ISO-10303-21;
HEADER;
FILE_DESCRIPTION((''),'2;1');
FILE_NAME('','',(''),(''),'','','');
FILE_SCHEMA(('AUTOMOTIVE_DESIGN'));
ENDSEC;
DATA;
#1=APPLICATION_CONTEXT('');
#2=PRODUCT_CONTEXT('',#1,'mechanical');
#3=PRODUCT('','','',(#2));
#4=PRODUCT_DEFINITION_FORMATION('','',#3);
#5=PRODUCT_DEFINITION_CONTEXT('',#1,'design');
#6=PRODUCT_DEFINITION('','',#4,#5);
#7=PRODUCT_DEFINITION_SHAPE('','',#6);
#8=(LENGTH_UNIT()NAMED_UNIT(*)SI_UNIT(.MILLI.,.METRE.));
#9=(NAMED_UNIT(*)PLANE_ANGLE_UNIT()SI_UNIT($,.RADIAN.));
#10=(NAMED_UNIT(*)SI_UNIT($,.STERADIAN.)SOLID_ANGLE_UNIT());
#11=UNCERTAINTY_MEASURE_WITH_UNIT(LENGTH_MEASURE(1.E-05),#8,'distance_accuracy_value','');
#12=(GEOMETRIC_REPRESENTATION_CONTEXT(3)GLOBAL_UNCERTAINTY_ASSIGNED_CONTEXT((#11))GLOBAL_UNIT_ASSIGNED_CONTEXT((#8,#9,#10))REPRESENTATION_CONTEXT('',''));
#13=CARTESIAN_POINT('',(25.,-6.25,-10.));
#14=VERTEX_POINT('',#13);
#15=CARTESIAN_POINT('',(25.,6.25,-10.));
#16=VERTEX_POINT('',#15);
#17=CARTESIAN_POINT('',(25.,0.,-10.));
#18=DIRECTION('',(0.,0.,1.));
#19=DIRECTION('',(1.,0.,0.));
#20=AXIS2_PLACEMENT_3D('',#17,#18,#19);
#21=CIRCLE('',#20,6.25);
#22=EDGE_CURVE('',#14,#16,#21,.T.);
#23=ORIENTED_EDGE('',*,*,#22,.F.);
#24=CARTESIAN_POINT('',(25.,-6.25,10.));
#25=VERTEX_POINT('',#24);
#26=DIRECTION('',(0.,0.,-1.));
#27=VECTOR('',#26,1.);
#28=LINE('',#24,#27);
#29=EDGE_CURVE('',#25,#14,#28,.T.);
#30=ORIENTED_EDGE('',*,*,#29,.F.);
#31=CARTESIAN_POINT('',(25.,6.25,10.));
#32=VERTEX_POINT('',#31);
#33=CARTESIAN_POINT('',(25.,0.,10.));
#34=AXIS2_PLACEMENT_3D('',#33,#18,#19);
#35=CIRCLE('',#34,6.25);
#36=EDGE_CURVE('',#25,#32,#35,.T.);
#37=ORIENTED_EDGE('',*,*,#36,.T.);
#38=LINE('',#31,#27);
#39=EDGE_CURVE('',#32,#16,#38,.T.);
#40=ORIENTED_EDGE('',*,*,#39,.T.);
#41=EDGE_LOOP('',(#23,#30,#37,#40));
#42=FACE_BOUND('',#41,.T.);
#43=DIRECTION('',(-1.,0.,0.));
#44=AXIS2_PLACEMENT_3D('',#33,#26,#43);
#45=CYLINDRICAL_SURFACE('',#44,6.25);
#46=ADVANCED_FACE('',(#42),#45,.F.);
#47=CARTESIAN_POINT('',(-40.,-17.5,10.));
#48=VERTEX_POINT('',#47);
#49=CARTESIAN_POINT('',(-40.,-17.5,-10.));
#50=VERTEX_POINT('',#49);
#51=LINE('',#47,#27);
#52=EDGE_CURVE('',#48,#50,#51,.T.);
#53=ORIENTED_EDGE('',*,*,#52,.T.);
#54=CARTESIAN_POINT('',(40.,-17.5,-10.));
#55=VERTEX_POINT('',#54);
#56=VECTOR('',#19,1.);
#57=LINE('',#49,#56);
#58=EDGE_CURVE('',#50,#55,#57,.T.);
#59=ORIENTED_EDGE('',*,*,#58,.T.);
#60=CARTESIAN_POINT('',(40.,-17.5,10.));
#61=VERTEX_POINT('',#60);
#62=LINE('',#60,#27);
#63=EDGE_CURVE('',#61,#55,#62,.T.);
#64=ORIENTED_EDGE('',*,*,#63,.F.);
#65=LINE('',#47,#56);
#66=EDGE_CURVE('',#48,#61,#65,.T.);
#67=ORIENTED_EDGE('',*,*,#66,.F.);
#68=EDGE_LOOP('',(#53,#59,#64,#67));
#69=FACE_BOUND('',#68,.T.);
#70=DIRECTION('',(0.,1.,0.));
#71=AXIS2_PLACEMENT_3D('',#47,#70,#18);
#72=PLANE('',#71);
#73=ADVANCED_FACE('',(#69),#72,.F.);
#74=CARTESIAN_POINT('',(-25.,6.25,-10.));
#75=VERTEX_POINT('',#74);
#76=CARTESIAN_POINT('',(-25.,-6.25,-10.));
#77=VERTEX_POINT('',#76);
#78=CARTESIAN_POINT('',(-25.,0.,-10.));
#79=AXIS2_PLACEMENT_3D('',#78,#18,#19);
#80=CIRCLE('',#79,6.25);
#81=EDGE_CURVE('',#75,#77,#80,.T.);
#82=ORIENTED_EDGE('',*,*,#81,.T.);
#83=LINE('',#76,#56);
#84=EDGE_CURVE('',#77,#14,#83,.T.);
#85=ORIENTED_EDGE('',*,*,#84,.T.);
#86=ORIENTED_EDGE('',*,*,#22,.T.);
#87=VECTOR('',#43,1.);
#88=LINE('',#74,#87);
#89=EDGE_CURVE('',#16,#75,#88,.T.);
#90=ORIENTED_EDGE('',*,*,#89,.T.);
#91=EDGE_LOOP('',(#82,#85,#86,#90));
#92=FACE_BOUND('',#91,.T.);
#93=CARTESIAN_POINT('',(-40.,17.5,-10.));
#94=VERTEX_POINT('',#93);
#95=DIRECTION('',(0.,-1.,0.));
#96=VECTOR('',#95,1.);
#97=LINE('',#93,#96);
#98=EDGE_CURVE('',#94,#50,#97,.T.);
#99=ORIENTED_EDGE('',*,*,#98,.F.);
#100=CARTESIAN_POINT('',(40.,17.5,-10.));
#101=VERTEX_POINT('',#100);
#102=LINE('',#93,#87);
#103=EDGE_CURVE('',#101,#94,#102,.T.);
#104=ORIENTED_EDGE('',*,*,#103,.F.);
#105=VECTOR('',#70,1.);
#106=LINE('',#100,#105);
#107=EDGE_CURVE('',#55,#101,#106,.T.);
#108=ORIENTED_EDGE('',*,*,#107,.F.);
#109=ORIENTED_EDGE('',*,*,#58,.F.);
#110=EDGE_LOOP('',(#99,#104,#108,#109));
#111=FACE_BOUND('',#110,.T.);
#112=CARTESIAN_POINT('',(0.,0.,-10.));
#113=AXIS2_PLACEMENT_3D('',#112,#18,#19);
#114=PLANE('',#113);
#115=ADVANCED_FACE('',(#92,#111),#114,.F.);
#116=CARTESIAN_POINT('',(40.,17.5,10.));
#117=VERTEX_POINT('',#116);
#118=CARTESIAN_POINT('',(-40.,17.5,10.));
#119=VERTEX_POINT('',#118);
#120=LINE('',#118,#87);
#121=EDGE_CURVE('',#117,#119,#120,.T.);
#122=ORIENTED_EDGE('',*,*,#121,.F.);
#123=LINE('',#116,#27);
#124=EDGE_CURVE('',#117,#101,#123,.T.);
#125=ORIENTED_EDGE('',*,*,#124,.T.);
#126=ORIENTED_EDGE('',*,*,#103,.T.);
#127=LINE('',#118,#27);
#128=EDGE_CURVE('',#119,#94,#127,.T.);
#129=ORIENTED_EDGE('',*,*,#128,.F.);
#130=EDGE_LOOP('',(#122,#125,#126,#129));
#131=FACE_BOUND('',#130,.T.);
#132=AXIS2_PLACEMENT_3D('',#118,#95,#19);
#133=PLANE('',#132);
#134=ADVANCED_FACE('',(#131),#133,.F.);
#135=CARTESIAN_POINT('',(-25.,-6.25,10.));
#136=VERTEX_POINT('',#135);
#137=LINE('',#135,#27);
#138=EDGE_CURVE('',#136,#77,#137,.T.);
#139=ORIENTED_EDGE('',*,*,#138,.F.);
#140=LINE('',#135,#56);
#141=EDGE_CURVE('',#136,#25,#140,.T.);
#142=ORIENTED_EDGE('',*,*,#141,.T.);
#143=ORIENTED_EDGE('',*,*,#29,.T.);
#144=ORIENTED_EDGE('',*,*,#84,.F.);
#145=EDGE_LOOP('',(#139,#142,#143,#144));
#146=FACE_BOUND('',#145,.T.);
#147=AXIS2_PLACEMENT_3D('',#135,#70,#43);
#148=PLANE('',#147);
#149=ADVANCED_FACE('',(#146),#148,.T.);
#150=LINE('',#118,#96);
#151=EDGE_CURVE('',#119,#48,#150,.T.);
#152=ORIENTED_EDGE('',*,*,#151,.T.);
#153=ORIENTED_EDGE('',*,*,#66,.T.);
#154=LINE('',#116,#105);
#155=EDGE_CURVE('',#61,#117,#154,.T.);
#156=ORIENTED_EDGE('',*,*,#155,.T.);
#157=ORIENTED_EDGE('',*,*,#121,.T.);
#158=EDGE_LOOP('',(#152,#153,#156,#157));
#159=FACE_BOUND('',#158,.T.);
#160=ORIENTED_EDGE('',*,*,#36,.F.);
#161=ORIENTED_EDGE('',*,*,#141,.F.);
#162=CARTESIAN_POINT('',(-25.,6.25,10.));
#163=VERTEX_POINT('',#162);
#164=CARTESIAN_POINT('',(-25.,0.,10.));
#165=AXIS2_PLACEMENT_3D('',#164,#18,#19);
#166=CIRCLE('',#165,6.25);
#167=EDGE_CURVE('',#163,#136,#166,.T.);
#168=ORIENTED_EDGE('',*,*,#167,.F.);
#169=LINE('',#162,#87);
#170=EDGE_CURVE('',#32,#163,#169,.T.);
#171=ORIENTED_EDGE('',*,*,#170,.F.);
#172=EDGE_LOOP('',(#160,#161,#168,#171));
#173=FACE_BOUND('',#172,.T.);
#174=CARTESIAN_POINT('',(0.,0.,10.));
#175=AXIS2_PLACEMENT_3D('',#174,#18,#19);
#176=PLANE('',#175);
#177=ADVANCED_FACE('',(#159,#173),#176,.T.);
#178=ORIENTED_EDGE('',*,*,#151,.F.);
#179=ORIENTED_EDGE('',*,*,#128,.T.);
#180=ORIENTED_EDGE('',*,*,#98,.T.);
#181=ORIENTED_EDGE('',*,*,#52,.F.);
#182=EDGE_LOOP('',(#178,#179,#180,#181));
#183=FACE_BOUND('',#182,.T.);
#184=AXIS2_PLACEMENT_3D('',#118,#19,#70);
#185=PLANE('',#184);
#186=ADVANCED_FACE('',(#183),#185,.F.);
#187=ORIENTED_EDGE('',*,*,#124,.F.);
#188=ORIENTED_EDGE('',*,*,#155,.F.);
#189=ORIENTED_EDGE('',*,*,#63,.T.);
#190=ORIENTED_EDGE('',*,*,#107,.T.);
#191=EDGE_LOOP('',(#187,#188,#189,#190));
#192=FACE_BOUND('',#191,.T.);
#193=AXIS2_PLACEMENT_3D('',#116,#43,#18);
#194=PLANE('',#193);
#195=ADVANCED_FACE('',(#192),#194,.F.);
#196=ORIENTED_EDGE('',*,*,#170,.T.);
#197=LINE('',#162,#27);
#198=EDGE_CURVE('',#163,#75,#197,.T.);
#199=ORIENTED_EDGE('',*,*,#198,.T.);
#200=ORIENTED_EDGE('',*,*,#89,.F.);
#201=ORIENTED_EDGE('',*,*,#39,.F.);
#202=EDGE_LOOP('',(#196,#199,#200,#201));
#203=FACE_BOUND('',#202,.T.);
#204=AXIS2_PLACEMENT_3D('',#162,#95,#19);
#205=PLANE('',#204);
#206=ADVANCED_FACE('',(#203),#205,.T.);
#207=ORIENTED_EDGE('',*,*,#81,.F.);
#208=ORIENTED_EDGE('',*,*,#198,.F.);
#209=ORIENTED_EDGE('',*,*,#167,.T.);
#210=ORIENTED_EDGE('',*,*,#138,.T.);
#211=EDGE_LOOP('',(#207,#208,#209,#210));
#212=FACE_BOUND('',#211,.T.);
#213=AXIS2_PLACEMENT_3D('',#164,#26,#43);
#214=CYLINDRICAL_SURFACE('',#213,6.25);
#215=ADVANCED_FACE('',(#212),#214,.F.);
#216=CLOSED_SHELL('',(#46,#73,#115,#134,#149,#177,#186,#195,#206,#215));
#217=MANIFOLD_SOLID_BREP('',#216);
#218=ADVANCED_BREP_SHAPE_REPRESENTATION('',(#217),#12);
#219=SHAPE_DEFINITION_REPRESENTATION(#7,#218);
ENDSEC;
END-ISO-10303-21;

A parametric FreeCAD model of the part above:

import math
import FreeCAD as App
import Part
import Sketcher

V = App.Vector
Q = App.Units.Quantity


def add_polygon(sketch, points):
    """Adds a closed chain of lines whose ends are joined by coincident constraints."""
    first, n = sketch.GeometryCount, len(points)
    for a, b in zip(points, points[1:] + points[:1]):
        sketch.addGeometry(Part.LineSegment(App.Vector(*a, 0), App.Vector(*b, 0)), False)
    for i in range(n):
        sketch.addConstraint(Sketcher.Constraint("Coincident", first + i, 2, first + (i + 1) % n, 1))

doc = App.newDocument("Part")
body = doc.addObject("PartDesign::Body", "Body")

# Sketch on XY plane
sketch1 = body.newObject("Sketcher::SketchObject", "Sketch")
sketch1.AttachmentSupport = (doc.getObject("XY_Plane"), [""])
sketch1.MapMode = "FlatFace"
add_polygon(sketch1, [(-40, 17.5), (-40, -17.5), (40, -17.5), (40, 17.5)])  # lines 0-3
sketch1.addGeometry(Part.ArcOfCircle(Part.Circle(V(-25, 0, 0), V(0, 0, 1), 6.25), math.radians(90), math.radians(270)), False)  # 4
sketch1.addGeometry(Part.LineSegment(V(-25, 6.25, 0), V(25, 6.25, 0)), False)  # 5
sketch1.addGeometry(Part.ArcOfCircle(Part.Circle(V(25, 0, 0), V(0, 0, 1), 6.25), math.radians(-90), math.radians(90)), False)  # 6
sketch1.addGeometry(Part.LineSegment(V(25, -6.25, 0), V(-25, -6.25, 0)), False)  # 7
sketch1.addConstraint(Sketcher.Constraint("Tangent", 4, 1, 5, 1))
sketch1.addConstraint(Sketcher.Constraint("Tangent", 5, 2, 6, 2))
sketch1.addConstraint(Sketcher.Constraint("Tangent", 6, 1, 7, 1))
sketch1.addConstraint(Sketcher.Constraint("Tangent", 7, 2, 4, 2))
sketch1.addConstraint(Sketcher.Constraint("Vertical", 0))
sketch1.addConstraint(Sketcher.Constraint("Horizontal", 1))
sketch1.addConstraint(Sketcher.Constraint("Vertical", 2))
sketch1.addConstraint(Sketcher.Constraint("Horizontal", 3))
sketch1.addConstraint(Sketcher.Constraint("Horizontal", 5))
sketch1.addConstraint(Sketcher.Constraint("Horizontal", 7))
sketch1.addConstraint(Sketcher.Constraint("Symmetric", 4, 3, 6, 3, -1, 1))
sketch1.addConstraint(Sketcher.Constraint("Symmetric", 0, 2, 2, 2, -1, 1))
sketch1.addConstraint(Sketcher.Constraint("DistanceX", 1, 1, 1, 2, Q("80 mm")))
sketch1.addConstraint(Sketcher.Constraint("DistanceX", 5, 1, 5, 2, Q("50 mm")))
sketch1.addConstraint(Sketcher.Constraint("DistanceY", 0, 2, 0, 1, Q("35 mm")))
sketch1.addConstraint(Sketcher.Constraint("Radius", 4, Q("6.25 mm")))
pad1 = body.newObject("PartDesign::Pad", "Pad")
pad1.Profile = sketch1
pad1.Length = 20
pad1.Midplane = True

doc.recompute()
